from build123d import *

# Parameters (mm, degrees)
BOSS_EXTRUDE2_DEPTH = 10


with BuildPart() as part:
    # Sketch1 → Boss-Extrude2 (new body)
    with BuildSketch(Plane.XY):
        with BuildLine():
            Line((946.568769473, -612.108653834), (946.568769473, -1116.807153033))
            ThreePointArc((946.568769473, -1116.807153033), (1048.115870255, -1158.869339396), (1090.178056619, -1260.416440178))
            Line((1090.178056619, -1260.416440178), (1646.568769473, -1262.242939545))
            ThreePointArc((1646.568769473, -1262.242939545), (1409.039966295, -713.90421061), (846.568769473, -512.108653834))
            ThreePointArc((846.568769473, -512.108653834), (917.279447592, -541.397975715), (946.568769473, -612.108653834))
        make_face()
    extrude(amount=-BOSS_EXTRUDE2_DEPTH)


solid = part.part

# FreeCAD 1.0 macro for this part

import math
import FreeCAD as App
import Part
import Sketcher
from FreeCAD import Vector
Q = App.Units.Quantity

doc = App.newDocument("Part")
body = doc.addObject("PartDesign::Body", "Body")

sketch1 = body.newObject("Sketcher::SketchObject", "Sketch")
sketch1.AttachmentSupport = (doc.getObject("XY_Plane"), [""])
sketch1.MapMode = "FlatFace"
sketch1.addGeometry([
    Part.LineSegment(Vector(946.568769, -612.108654, 0), Vector(946.568769, -1116.807153, 0)),
    Part.ArcOfCircle(Part.Circle(Vector(946.568769, -1260.41644, 0), Vector(0, 0, 1), 143.609287), math.radians(0), math.radians(90)),
    Part.LineSegment(Vector(1090.178057, -1260.41644, 0), Vector(1646.568769, -1262.24294, 0)),
    Part.ArcOfCircle(Part.Circle(Vector(894.880365, -1262.24294, 0), Vector(0, 0, 1), 751.688404), math.radians(0), math.radians(93.684984)),
    Part.ArcOfCircle(Part.Circle(Vector(846.568769, -612.108654, 0), Vector(0, 0, 1), 100), math.radians(0), math.radians(90)),
], False)
sketch1.addConstraint([
    Sketcher.Constraint("Coincident", 0, 2, 1, 2),
    Sketcher.Constraint("Coincident", 1, 1, 2, 1),
    Sketcher.Constraint("Coincident", 2, 2, 3, 1),
    Sketcher.Constraint("Coincident", 3, 2, 4, 2),
    Sketcher.Constraint("Tangent", 4, 1, 0, 1),
    Sketcher.Constraint("Vertical", 0),
    Sketcher.Constraint("Horizontal", 3, 3, 2, 2),
    Sketcher.Constraint("Vertical", 1, 3, 0, 2),
    Sketcher.Constraint("Vertical", 4, 3, 3, 2),
    Sketcher.Constraint("Radius", 4, Q("100 mm")),
    Sketcher.Constraint("DistanceX", 1, 3, 2, 2, Q("700 mm")),
    Sketcher.Constraint("DistanceY", 0, 2, 0, 1, Q("504.698499 mm")),
    Sketcher.Constraint("Radius", 1, Q("143.609287 mm")),
    Sketcher.Constraint("Radius", 3, Q("751.688404 mm")),
    Sketcher.Constraint("DistanceY", 3, 3, 1, 1, Q("1.826499 mm")),
    Sketcher.Constraint("DistanceX", -1, 1, 1, 3, Q("946.568769 mm")),
    Sketcher.Constraint("DistanceY", 1, 3, -1, 1, Q("1260.41644 mm")),
])
pad1 = body.newObject("PartDesign::Pad", "Pad")
pad1.Profile = sketch1
pad1.Length = 10
pad1.Reversed = True

doc.recompute()
